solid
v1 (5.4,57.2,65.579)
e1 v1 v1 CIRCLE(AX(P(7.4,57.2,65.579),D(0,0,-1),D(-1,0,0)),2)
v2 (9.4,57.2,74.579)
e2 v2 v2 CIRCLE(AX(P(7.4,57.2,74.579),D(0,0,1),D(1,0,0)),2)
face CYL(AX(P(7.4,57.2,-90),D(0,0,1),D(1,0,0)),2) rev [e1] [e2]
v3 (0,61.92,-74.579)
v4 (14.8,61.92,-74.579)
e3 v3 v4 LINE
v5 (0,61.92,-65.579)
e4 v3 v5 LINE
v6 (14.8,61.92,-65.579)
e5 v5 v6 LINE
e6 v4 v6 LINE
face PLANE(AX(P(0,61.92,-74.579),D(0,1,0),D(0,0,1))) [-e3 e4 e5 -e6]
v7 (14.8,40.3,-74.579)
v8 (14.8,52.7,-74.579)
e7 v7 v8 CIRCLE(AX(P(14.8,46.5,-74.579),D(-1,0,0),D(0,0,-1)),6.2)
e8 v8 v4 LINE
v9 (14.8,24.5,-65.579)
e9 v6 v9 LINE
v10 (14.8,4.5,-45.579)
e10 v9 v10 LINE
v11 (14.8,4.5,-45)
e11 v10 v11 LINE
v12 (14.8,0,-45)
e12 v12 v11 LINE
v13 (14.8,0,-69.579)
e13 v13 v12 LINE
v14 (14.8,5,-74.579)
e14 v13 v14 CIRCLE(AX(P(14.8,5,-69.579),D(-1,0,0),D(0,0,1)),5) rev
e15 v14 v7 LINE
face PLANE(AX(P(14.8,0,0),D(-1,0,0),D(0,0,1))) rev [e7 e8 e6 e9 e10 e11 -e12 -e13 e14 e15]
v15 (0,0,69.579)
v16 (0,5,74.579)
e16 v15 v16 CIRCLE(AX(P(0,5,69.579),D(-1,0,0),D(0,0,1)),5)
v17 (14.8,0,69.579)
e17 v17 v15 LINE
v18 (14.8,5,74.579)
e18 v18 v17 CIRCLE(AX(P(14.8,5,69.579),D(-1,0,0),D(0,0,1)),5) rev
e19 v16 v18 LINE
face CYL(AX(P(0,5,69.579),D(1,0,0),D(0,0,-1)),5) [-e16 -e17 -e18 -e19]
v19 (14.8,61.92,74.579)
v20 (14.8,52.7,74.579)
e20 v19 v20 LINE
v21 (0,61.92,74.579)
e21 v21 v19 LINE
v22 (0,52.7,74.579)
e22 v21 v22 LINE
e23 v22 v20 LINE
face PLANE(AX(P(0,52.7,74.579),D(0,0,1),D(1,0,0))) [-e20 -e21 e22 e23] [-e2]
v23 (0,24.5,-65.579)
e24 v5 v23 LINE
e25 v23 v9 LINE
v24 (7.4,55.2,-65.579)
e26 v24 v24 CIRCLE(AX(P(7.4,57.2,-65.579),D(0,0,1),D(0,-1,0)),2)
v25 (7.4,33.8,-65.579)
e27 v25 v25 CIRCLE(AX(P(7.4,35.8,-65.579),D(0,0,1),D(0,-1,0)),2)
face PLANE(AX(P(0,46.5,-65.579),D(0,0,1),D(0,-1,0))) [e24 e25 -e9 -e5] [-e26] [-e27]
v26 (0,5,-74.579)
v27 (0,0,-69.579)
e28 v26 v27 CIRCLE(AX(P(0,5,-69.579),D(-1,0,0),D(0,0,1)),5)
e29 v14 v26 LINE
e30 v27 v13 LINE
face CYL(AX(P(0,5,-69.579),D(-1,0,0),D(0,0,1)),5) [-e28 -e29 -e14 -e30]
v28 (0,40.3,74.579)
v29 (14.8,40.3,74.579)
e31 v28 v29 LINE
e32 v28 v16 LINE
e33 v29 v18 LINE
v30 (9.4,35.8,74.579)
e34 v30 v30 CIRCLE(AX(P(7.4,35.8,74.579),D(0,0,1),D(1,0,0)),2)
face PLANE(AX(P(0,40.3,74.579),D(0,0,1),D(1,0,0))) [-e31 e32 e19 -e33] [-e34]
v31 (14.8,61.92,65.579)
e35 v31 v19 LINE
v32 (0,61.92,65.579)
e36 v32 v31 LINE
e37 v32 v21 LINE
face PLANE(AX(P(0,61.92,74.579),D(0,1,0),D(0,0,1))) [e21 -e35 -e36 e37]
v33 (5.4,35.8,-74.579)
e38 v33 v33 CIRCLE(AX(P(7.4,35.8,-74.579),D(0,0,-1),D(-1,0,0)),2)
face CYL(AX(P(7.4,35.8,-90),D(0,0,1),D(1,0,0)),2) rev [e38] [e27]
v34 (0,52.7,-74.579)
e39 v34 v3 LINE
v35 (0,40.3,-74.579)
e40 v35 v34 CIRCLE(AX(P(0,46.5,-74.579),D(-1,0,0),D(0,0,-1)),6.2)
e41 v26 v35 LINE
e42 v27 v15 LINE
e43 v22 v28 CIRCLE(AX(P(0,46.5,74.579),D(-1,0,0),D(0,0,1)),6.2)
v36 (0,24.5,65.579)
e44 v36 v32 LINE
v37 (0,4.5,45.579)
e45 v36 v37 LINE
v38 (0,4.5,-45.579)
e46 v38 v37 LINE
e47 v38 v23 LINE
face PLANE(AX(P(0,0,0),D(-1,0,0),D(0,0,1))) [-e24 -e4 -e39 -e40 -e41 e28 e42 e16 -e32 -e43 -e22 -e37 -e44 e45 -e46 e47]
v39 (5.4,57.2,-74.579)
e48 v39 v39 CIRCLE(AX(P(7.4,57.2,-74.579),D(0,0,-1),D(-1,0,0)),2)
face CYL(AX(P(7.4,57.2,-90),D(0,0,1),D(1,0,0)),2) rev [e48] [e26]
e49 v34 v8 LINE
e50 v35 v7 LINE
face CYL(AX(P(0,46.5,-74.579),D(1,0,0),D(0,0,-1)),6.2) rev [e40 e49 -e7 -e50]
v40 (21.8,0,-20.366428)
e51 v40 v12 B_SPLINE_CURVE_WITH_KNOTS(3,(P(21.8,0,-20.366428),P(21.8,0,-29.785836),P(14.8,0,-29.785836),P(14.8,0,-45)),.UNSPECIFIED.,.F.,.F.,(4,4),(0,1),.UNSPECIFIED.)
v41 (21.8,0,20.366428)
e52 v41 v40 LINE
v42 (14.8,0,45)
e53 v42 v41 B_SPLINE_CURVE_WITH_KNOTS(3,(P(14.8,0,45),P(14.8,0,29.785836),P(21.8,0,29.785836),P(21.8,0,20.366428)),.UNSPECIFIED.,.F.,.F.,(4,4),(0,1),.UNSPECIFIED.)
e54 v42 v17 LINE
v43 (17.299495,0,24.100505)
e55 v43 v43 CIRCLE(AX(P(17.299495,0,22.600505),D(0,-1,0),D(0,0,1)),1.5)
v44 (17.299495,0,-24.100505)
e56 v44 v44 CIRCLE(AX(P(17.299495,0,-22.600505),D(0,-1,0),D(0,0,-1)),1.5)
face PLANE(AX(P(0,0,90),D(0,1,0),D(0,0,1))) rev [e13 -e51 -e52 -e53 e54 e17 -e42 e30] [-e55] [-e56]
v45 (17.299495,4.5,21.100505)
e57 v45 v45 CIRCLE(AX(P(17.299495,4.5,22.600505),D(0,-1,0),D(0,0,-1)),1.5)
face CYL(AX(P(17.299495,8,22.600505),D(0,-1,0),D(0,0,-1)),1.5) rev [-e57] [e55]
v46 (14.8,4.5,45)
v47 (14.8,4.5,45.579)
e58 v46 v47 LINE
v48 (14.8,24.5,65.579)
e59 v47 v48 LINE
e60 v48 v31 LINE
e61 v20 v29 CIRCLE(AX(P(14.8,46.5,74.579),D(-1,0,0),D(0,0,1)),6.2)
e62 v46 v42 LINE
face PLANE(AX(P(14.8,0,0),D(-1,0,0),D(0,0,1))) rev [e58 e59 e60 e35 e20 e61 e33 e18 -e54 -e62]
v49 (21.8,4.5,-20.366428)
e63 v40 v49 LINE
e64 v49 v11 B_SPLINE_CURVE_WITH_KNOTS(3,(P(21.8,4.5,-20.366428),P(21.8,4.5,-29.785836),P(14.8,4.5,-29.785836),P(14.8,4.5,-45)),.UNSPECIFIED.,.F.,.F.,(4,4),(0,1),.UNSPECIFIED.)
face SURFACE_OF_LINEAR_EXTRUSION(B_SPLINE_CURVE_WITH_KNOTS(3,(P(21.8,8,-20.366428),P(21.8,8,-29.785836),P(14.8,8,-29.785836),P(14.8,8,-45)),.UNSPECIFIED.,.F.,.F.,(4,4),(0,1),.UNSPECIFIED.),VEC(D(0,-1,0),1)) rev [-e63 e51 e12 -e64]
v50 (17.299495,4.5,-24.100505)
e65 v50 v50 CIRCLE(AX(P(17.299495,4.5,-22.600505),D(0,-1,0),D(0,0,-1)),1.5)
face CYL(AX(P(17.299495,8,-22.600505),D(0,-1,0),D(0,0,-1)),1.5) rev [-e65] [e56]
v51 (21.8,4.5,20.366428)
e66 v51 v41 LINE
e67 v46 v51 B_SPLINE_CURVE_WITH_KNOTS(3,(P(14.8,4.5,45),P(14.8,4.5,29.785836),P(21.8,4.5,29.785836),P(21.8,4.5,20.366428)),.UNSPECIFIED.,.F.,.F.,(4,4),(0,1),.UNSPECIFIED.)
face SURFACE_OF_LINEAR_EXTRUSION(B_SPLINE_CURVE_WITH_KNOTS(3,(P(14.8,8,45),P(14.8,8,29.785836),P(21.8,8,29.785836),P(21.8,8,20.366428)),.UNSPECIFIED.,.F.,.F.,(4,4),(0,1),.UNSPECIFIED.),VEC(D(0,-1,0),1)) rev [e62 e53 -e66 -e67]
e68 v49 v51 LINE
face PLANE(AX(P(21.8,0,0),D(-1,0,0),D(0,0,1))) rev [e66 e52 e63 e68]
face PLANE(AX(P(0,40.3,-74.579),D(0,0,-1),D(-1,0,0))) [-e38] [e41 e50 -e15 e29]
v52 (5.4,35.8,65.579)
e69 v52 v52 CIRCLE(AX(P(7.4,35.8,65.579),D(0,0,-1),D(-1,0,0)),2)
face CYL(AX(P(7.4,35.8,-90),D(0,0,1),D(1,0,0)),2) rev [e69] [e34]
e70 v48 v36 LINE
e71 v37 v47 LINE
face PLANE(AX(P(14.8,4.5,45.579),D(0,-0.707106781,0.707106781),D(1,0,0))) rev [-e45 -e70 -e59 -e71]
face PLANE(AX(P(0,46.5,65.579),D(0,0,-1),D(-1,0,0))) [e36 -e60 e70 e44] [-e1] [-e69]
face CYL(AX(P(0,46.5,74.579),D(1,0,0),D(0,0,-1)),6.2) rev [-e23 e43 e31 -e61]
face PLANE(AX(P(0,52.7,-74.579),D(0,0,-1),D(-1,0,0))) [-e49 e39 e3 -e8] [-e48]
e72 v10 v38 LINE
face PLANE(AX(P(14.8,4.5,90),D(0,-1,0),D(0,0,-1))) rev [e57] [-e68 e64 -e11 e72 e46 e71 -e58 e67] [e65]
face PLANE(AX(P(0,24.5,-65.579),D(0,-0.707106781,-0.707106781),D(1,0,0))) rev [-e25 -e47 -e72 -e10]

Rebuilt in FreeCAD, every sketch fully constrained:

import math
import FreeCAD as App
import Part
import Sketcher

V = App.Vector


def edges_at(feature, points):
    """Names of the edges that pass closest to the given points."""
    edges = feature.Shape.Edges
    near = lambda p: min(range(len(edges)), key=lambda i: edges[i].distToShape(Part.Vertex(*p))[0])
    return sorted({f"Edge{near(p) + 1}" for p in points})


def add_polygon(sketch, points):
    """Adds a closed chain of lines whose ends are joined by coincident constraints."""
    first, n = sketch.GeometryCount, len(points)
    for a, b in zip(points, points[1:] + points[:1]):
        sketch.addGeometry(Part.LineSegment(App.Vector(*a, 0), App.Vector(*b, 0)), False)
    for i in range(n):
        sketch.addConstraint(Sketcher.Constraint("Coincident", first + i, 2, first + (i + 1) % n, 1))

doc = App.newDocument("Part")
body = doc.addObject("PartDesign::Body", "Body")

sketch1 = body.newObject("Sketcher::SketchObject", "Sketch")
sketch1.AttachmentSupport = (doc.getObject("YZ_Plane"), [""])
sketch1.MapMode = "FlatFace"
add_polygon(sketch1, [(4.5, 90), (-4.5, 90), (-4.5, -90), (4.5, -90)])
sketch1.addConstraint([
    Sketcher.Constraint("Horizontal", 0),
    Sketcher.Constraint("Vertical", 1),
    Sketcher.Constraint("Horizontal", 2),
    Sketcher.Constraint("Vertical", 3),
    Sketcher.Constraint("Symmetric", 0, 2, 2, 2, -1, 1),
    Sketcher.Constraint("DistanceX", 0, 2, 0, 1, 9.0),
    Sketcher.Constraint("DistanceY", 1, 2, 1, 1, 180.0),
])
pad1 = body.newObject("PartDesign::Pad", "Pad")
pad1.Profile = sketch1
pad1.Length = 14.8

sketch2 = body.newObject("Sketcher::SketchObject", "Sketch001")
sketch2.AttachmentSupport = (doc.getObject("YZ_Plane"), [""])
sketch2.MapMode = "FlatFace"
sketch2.AttachmentOffset = App.Placement(V(0, 0, 14.8), App.Rotation())
add_polygon(sketch2, [(0, 90), (-4.5, 90), (-4.5, -90), (0, -90)])
sketch2.addConstraint([
    Sketcher.Constraint("Horizontal", 0),
    Sketcher.Constraint("Vertical", 1),
    Sketcher.Constraint("Horizontal", 2),
    Sketcher.Constraint("Vertical", 3),
    Sketcher.Constraint("Symmetric", 2, 2, 3, 2, -1, 1),
    Sketcher.Constraint("DistanceY", 1, 2, 1, 1, 180.0),
    Sketcher.Constraint("DistanceX", 0, 2, 0, 1, 4.5),
])
pocket1 = body.newObject("PartDesign::Pocket", "Pocket")
pocket1.Profile = sketch2
pocket1.Type = "ThroughAll"

sketch3 = body.newObject("Sketcher::SketchObject", "Sketch002")
sketch3.AttachmentSupport = (doc.getObject("YZ_Plane"), [""])
sketch3.MapMode = "FlatFace"
sketch3.AttachmentOffset = App.Placement(V(0, 0, 14.8), App.Rotation())
add_polygon(sketch3, [(4.5, 45), (0, 45), (0, -45), (4.5, -45)])
sketch3.addConstraint([
    Sketcher.Constraint("Horizontal", 0),
    Sketcher.Constraint("Vertical", 1),
    Sketcher.Constraint("Horizontal", 2),
    Sketcher.Constraint("Vertical", 3),
    Sketcher.Constraint("Symmetric", 0, 2, 1, 2, -1, 1),
    Sketcher.Constraint("DistanceY", 1, 2, 1, 1, 90.0),
    Sketcher.Constraint("DistanceX", 0, 2, 0, 1, 4.5),
])
pad2 = body.newObject("PartDesign::Pad", "Pad001")
pad2.Profile = sketch3
pad2.Length = 7

sketch4 = body.newObject("Sketcher::SketchObject", "Sketch003")
sketch4.AttachmentSupport = (doc.getObject("XZ_Plane"), [""])
sketch4.MapMode = "FlatFace"
sketch4.addGeometry([
    Part.Circle(V(17.299495, -22.600505, 0), V(0, 0, 1), 1.5),
    Part.Circle(V(17.299495, 22.600505, 0), V(0, 0, 1), 1.5),
    Part.LineSegment(V(30.172284, -20.366428, 0), V(21.8, -20.366428, 0)),
    Part.BSplineCurve([V(14.8, -45, 0), V(14.8, -29.785836, 0), V(21.8, -29.785836, 0), V(21.8, -20.366428, 0)], [4, 4], [0, 1], False, 3, [1, 1, 1, 1], False),
    Part.LineSegment(V(14.8, -45, 0), V(14.8, -52.038849, 0)),
    Part.LineSegment(V(14.8, -52.038849, 0), V(30.172284, -52.038849, 0)),
    Part.LineSegment(V(30.172284, -52.038849, 0), V(30.172284, -20.366428, 0)),
    Part.LineSegment(V(30.172284, 52.038849, 0), V(14.8, 52.038849, 0)),
    Part.LineSegment(V(14.8, 52.038849, 0), V(14.8, 45, 0)),
    Part.BSplineCurve([V(14.8, 45, 0), V(14.8, 29.785836, 0), V(21.8, 29.785836, 0), V(21.8, 20.366428, 0)], [4, 4], [0, 1], False, 3, [1, 1, 1, 1], False),
    Part.LineSegment(V(21.8, 20.366428, 0), V(30.172284, 20.366428, 0)),
    Part.LineSegment(V(30.172284, 20.366428, 0), V(30.172284, 52.038849, 0)),
], False)
sketch4.addConstraint([
    Sketcher.Constraint("Block", 3),
    Sketcher.Constraint("Block", 9),
    Sketcher.Constraint("Coincident", 2, 2, 3, 2),
    Sketcher.Constraint("Coincident", 3, 1, 4, 1),
    Sketcher.Constraint("Coincident", 4, 2, 5, 1),
    Sketcher.Constraint("Coincident", 5, 2, 6, 1),
    Sketcher.Constraint("Coincident", 6, 2, 2, 1),
    Sketcher.Constraint("Coincident", 7, 2, 8, 1),
    Sketcher.Constraint("Coincident", 8, 2, 9, 1),
    Sketcher.Constraint("Coincident", 9, 2, 10, 1),
    Sketcher.Constraint("Coincident", 10, 2, 11, 1),
    Sketcher.Constraint("Coincident", 11, 2, 7, 1),
    Sketcher.Constraint("Horizontal", 2),
    Sketcher.Constraint("Vertical", 4),
    Sketcher.Constraint("Horizontal", 5),
    Sketcher.Constraint("Vertical", 6),
    Sketcher.Constraint("Horizontal", 7),
    Sketcher.Constraint("Vertical", 8),
    Sketcher.Constraint("Horizontal", 10),
    Sketcher.Constraint("Vertical", 11),
    Sketcher.Constraint("Equal", 0, 1),
    Sketcher.Constraint("Symmetric", 0, 3, 1, 3, -1),
    Sketcher.Constraint("Symmetric", 5, 2, 11, 2, -1),
    Sketcher.Constraint("Diameter", 0, 3.0),
    Sketcher.Constraint("DistanceY", 4, 2, 4, 1, 7.038849),
    Sketcher.Constraint("DistanceX", 2, 2, 2, 1, 8.372284),
    Sketcher.Constraint("DistanceY", 0, 3, 1, 3, 45.20101),
    Sketcher.Constraint("DistanceX", 0, 3, 5, 2, 12.872789),
])
pocket2 = body.newObject("PartDesign::Pocket", "Pocket001")
pocket2.Profile = sketch4
pocket2.Length = 8

sketch5 = body.newObject("Sketcher::SketchObject", "Sketch004")
sketch5.AttachmentSupport = (doc.getObject("YZ_Plane"), [""])
sketch5.MapMode = "FlatFace"
sketch5.AttachmentOffset = App.Placement(V(0, 0, 14.8), App.Rotation())
sketch5.addGeometry([
    Part.LineSegment(V(4.5, -74.579, 0), V(40.3, -74.579, 0)),
    Part.ArcOfCircle(Part.Circle(V(46.5, -74.579, 0), V(0, 0, 1), 6.2), math.radians(0), math.radians(180)),
    Part.LineSegment(V(52.7, -74.579, 0), V(61.92, -74.579, 0)),
    Part.LineSegment(V(61.92, -74.579, 0), V(61.92, -65.579, 0)),
    Part.LineSegment(V(61.92, -65.579, 0), V(4.5, -65.579, 0)),
    Part.LineSegment(V(4.5, -65.579, 0), V(4.5, -74.579, 0)),
    Part.LineSegment(V(61.92, 74.579, 0), V(52.7, 74.579, 0)),
    Part.ArcOfCircle(Part.Circle(V(46.5, 74.579, 0), V(0, 0, 1), 6.2), math.radians(180), math.radians(360)),
    Part.LineSegment(V(40.3, 74.579, 0), V(4.5, 74.579, 0)),
    Part.LineSegment(V(4.5, 74.579, 0), V(4.5, 65.579, 0)),
    Part.LineSegment(V(4.5, 65.579, 0), V(61.92, 65.579, 0)),
    Part.LineSegment(V(61.92, 65.579, 0), V(61.92, 74.579, 0)),
], False)
sketch5.addConstraint([
    Sketcher.Constraint("Coincident", 0, 2, 1, 2),
    Sketcher.Constraint("Coincident", 1, 1, 2, 1),
    Sketcher.Constraint("Coincident", 2, 2, 3, 1),
    Sketcher.Constraint("Coincident", 3, 2, 4, 1),
    Sketcher.Constraint("Coincident", 4, 2, 5, 1),
    Sketcher.Constraint("Coincident", 5, 2, 0, 1),
    Sketcher.Constraint("Coincident", 6, 2, 7, 2),
    Sketcher.Constraint("Coincident", 7, 1, 8, 1),
    Sketcher.Constraint("Coincident", 8, 2, 9, 1),
    Sketcher.Constraint("Coincident", 9, 2, 10, 1),
    Sketcher.Constraint("Coincident", 10, 2, 11, 1),
    Sketcher.Constraint("Coincident", 11, 2, 6, 1),
    Sketcher.Constraint("Horizontal", 0),
    Sketcher.Constraint("Horizontal", 2),
    Sketcher.Constraint("Vertical", 3),
    Sketcher.Constraint("Horizontal", 4),
    Sketcher.Constraint("Vertical", 5),
    Sketcher.Constraint("Horizontal", 6),
    Sketcher.Constraint("Horizontal", 8),
    Sketcher.Constraint("Vertical", 9),
    Sketcher.Constraint("Horizontal", 10),
    Sketcher.Constraint("Vertical", 11),
    Sketcher.Constraint("Equal", 1, 7),
    Sketcher.Constraint("Symmetric", 1, 3, 7, 3, -1),
    Sketcher.Constraint("Symmetric", 5, 2, 8, 2, -1),
    Sketcher.Constraint("Symmetric", 3, 2, 10, 2, -1),
    Sketcher.Constraint("Horizontal", 1, 3, 0, 2),
    Sketcher.Constraint("Horizontal", 0, 2, 1, 1),
    Sketcher.Constraint("Horizontal", 7, 3, 6, 2),
    Sketcher.Constraint("Radius", 1, 6.2),
    Sketcher.Constraint("DistanceY", 3, 1, 3, 2, 9.0),
    Sketcher.Constraint("DistanceX", 0, 1, 0, 2, 35.8),
    Sketcher.Constraint("DistanceX", 2, 1, 2, 2, 9.22),
    Sketcher.Constraint("DistanceX", -1, 1, 1, 3, 46.5),
    Sketcher.Constraint("DistanceY", 1, 3, -1, 1, 74.579),
])
pad3 = body.newObject("PartDesign::Pad", "Pad002")
pad3.Profile = sketch5
pad3.Length = 14.8
pad3.Reversed = True

sketch6 = body.newObject("Sketcher::SketchObject", "Sketch005")
sketch6.AttachmentSupport = (doc.getObject("XY_Plane"), [""])
sketch6.MapMode = "FlatFace"
sketch6.AttachmentOffset = App.Placement(V(0, 0, 74.579), App.Rotation())
sketch6.addGeometry([
    Part.Circle(V(7.4, 57.2, 0), V(0, 0, 1), 2),
    Part.Circle(V(7.4, 35.8, 0), V(0, 0, 1), 2),
], False)
sketch6.addConstraint([
    Sketcher.Constraint("Equal", 0, 1),
    Sketcher.Constraint("Vertical", 0, 3, 1, 3),
    Sketcher.Constraint("Diameter", 0, 4.0),
    Sketcher.Constraint("DistanceX", -1, 1, 0, 3, 7.4),
    Sketcher.Constraint("DistanceY", -1, 1, 0, 3, 57.2),
    Sketcher.Constraint("DistanceY", -1, 1, 1, 3, 35.8),
])
pocket3 = body.newObject("PartDesign::Pocket", "Pocket002")
pocket3.Profile = sketch6
pocket3.Type = "ThroughAll"
pocket3.Midplane = True

sketch7 = body.newObject("Sketcher::SketchObject", "Sketch006")
sketch7.AttachmentSupport = (doc.getObject("YZ_Plane"), [""])
sketch7.MapMode = "FlatFace"
add_polygon(sketch7, [(4.5, 74.579), (-10.429639, 74.579), (-10.429639, 100.927018), (4.5, 100.927018)])
add_polygon(sketch7, [(4.5, -100.927018), (-10.429639, -100.927018), (-10.429639, -74.579), (4.5, -74.579)])
sketch7.addConstraint([
    Sketcher.Constraint("Horizontal", 0),
    Sketcher.Constraint("Vertical", 1),
    Sketcher.Constraint("Horizontal", 2),
    Sketcher.Constraint("Vertical", 3),
    Sketcher.Constraint("Horizontal", 4),
    Sketcher.Constraint("Vertical", 5),
    Sketcher.Constraint("Horizontal", 6),
    Sketcher.Constraint("Vertical", 7),
    Sketcher.Constraint("Symmetric", 1, 2, 4, 2, -1),
    Sketcher.Constraint("Symmetric", 3, 2, 6, 2, -1),
    Sketcher.Constraint("DistanceX", -1, 1, 2, 2, 4.5),
    Sketcher.Constraint("DistanceY", -1, 1, 0, 2, 74.579),
    Sketcher.Constraint("DistanceX", 0, 2, 0, 1, 14.929639),
    Sketcher.Constraint("DistanceY", 1, 1, 1, 2, 26.348018),
])
pocket4 = body.newObject("PartDesign::Pocket", "Pocket003")
pocket4.Profile = sketch7
pocket4.Type = "ThroughAll"
pocket4.Midplane = True
doc.recompute()

fillet = body.newObject("PartDesign::Fillet", "Fillet")
fillet.Base = (pocket4, edges_at(pocket4, [(7.4, 0, -74.579), (7.4, 0, 74.579)]))
fillet.Radius = 5
doc.recompute()

chamfer = body.newObject("PartDesign::Chamfer", "Chamfer")
chamfer.Base = (fillet, edges_at(fillet, [(7.4, 4.5, 65.579), (7.4, 4.5, -65.579)]))
chamfer.Size = 20

doc.recompute()
